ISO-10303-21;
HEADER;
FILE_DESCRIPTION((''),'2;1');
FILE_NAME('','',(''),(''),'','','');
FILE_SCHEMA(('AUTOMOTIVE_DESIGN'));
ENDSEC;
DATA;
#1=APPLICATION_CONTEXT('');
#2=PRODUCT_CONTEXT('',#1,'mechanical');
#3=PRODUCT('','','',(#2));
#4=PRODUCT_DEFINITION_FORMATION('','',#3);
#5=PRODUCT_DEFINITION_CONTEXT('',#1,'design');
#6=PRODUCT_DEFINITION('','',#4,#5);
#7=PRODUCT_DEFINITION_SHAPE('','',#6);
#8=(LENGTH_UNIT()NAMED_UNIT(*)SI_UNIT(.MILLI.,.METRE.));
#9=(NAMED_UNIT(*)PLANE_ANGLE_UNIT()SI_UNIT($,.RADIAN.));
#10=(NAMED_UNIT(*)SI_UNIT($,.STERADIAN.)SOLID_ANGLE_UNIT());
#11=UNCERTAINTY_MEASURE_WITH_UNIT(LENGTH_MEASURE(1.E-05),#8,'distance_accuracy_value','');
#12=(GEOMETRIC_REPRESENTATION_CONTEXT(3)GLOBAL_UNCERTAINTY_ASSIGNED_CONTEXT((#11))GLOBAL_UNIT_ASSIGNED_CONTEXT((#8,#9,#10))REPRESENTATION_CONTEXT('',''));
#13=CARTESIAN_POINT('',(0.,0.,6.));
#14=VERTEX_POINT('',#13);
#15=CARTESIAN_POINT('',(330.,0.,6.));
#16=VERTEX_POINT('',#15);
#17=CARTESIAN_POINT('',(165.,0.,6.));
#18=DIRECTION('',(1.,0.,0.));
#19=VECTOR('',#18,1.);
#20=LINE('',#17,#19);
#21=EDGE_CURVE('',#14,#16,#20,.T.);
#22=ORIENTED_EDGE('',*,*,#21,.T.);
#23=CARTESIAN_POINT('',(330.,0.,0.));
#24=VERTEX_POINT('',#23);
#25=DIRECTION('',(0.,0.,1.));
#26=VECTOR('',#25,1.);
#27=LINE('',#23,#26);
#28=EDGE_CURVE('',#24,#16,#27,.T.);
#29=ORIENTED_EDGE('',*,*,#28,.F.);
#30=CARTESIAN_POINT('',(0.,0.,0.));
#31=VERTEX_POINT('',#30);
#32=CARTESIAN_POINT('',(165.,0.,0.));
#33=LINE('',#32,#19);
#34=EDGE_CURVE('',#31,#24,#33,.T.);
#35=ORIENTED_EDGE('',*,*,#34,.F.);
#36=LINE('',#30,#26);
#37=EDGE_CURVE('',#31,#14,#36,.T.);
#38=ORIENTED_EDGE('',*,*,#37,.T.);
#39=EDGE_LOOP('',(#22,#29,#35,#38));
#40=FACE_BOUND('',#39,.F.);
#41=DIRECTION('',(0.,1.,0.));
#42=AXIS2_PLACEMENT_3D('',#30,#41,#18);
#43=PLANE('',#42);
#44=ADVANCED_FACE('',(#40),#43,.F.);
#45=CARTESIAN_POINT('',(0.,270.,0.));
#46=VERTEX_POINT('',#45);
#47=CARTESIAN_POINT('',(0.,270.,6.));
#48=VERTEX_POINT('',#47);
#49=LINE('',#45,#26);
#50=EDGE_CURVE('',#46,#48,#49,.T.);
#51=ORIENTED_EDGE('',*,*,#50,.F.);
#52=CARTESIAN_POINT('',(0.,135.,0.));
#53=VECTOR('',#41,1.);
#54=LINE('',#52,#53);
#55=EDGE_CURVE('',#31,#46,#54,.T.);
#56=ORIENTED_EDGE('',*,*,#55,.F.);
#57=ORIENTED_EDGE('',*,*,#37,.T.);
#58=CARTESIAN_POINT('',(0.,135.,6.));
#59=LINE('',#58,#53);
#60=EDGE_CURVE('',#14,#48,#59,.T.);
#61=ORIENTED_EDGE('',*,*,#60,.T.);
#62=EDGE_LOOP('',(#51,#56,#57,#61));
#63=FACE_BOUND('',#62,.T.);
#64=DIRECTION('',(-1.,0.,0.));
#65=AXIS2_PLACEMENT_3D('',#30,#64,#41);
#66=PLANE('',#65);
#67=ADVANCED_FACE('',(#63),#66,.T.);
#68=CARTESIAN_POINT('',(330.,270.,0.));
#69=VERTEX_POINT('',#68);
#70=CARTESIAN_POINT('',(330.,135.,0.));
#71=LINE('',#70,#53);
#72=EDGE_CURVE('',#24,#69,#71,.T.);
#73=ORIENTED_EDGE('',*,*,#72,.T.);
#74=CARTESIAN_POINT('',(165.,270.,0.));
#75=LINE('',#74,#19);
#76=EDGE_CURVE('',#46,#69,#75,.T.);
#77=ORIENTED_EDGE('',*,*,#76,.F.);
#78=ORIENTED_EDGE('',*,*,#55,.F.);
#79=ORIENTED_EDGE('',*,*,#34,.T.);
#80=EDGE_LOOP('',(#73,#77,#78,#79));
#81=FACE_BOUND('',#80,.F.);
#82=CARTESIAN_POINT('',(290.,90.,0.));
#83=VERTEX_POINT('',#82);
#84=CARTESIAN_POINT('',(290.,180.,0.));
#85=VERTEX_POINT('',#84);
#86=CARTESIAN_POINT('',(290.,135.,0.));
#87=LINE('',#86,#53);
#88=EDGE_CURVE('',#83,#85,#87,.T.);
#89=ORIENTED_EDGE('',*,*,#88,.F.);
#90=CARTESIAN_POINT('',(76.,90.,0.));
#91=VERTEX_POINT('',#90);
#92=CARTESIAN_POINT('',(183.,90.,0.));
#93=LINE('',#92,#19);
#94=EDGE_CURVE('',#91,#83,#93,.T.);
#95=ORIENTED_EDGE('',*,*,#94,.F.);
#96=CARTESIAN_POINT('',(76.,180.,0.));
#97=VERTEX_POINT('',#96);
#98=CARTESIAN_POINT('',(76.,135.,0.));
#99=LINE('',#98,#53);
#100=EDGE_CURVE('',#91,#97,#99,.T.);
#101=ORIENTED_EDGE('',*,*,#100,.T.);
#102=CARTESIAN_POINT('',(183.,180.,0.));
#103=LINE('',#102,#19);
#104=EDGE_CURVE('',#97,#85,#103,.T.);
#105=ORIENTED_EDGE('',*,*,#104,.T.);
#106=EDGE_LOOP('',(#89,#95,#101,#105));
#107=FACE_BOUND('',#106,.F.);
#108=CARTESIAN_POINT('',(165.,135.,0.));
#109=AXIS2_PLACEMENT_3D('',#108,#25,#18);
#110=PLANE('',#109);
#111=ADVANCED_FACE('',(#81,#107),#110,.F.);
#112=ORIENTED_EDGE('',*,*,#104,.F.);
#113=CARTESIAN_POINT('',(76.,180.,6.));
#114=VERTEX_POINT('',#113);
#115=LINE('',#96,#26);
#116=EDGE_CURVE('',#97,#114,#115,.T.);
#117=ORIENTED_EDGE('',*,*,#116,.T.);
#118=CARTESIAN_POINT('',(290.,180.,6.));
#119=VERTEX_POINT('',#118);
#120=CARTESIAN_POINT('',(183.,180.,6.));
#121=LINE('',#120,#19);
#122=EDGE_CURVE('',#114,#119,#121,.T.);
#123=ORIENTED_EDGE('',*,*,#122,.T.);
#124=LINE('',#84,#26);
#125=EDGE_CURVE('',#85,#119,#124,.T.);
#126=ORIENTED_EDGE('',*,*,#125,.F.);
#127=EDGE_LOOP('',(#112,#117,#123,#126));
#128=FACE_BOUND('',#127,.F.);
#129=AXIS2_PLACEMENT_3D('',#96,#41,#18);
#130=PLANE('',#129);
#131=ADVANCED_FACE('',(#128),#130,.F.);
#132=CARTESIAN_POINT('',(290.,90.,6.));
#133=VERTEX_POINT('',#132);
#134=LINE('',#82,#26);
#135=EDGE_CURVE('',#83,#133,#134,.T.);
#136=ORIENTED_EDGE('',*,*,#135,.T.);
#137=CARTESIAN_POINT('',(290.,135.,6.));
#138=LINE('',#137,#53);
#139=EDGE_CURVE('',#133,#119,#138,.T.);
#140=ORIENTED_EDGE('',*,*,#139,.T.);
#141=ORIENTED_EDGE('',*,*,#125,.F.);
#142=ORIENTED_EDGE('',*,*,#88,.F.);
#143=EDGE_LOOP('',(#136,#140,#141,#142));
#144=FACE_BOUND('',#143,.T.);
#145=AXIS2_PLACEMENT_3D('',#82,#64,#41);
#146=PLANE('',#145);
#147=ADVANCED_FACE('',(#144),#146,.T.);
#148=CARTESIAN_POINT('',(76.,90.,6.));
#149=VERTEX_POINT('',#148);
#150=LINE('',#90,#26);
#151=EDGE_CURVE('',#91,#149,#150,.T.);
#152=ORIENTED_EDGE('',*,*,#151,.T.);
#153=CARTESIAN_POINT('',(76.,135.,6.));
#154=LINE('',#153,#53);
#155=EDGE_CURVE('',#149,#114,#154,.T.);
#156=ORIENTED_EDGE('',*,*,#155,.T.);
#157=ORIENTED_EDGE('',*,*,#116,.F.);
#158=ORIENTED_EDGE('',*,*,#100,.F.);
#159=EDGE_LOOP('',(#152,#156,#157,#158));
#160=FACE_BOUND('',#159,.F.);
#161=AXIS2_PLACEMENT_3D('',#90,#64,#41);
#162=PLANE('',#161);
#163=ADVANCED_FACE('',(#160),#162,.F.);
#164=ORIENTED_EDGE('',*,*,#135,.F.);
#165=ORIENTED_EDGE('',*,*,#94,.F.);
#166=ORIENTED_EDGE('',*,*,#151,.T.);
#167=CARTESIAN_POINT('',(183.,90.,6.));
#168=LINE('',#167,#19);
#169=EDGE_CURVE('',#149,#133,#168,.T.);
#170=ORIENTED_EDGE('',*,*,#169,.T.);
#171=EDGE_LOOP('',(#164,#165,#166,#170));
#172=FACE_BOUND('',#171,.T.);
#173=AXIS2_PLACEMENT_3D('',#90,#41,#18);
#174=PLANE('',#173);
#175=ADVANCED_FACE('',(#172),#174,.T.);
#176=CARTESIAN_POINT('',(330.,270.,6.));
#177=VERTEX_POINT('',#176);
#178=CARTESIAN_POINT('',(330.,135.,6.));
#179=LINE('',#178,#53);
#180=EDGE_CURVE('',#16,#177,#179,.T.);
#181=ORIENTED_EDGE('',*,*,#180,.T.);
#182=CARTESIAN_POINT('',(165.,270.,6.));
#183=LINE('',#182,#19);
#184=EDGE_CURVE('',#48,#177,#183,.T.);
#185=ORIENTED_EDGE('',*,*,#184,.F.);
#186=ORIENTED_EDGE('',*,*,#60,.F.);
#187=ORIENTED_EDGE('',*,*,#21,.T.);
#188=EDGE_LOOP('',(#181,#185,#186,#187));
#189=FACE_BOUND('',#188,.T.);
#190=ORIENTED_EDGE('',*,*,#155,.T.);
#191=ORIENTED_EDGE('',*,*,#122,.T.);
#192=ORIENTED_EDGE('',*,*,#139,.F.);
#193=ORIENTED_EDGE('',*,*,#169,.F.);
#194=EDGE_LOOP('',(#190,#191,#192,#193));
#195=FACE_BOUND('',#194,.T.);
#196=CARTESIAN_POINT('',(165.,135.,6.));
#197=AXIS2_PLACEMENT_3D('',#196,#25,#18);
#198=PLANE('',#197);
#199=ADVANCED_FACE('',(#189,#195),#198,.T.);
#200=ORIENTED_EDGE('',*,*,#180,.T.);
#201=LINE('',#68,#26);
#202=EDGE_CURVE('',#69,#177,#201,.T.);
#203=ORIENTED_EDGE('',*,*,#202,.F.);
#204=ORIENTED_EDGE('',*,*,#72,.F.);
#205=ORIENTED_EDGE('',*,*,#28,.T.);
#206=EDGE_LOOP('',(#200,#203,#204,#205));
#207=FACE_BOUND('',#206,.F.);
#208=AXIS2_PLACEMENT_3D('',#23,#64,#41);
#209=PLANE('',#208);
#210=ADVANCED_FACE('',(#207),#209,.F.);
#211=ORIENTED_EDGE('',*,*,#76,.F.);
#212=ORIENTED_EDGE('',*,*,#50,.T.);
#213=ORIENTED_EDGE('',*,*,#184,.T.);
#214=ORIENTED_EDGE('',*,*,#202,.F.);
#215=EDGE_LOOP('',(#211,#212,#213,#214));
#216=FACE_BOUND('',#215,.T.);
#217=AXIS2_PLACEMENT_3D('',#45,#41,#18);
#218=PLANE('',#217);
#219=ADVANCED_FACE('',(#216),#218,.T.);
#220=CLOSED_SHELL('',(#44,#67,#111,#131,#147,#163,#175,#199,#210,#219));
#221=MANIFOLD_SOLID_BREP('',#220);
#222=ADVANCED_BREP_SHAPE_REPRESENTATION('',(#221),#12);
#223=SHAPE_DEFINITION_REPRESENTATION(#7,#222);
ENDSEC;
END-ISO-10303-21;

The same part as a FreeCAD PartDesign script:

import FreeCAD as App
import Part
import Sketcher


def add_polygon(sketch, points):
    """Adds a closed chain of lines whose ends are joined by coincident constraints."""
    first, n = sketch.GeometryCount, len(points)
    for a, b in zip(points, points[1:] + points[:1]):
        sketch.addGeometry(Part.LineSegment(App.Vector(*a, 0), App.Vector(*b, 0)), False)
    for i in range(n):
        sketch.addConstraint(Sketcher.Constraint("Coincident", first + i, 2, first + (i + 1) % n, 1))

doc = App.newDocument("Part")
body = doc.addObject("PartDesign::Body", "Body")

# Sketch on XY plane
sketch1 = doc.addObject("Sketcher::SketchObject", "Sketch")
body.addObject(sketch1)
sketch1.AttachmentSupport = (doc.XY_Plane, [""])
sketch1.MapMode = "FlatFace"
add_polygon(sketch1, [(0, 270), (0, 0), (330, 0), (330, 270)])  # lines 0-3
add_polygon(sketch1, [(290, 90), (76, 90), (76, 180), (290, 180)])  # lines 4-7
sketch1.addConstraint([
    Sketcher.Constraint("Vertical", 0),
    Sketcher.Constraint("Horizontal", 1),
    Sketcher.Constraint("Vertical", 2),
    Sketcher.Constraint("Horizontal", 3),
    Sketcher.Constraint("Horizontal", 4),
    Sketcher.Constraint("Vertical", 5),
    Sketcher.Constraint("Horizontal", 6),
    Sketcher.Constraint("Vertical", 7),
    Sketcher.Constraint("Coincident", 0, 2, -1, 1),
    Sketcher.Constraint("DistanceX", 1, 1, 1, 2, 330.0),
    Sketcher.Constraint("DistanceX", 4, 2, 4, 1, 214.0),
    Sketcher.Constraint("DistanceY", 0, 2, 0, 1, 270.0),
    Sketcher.Constraint("DistanceY", 5, 1, 5, 2, 90.0),
    Sketcher.Constraint("DistanceX", -1, 1, 4, 2, 76.0),
    Sketcher.Constraint("DistanceY", -1, 1, 4, 2, 90.0),
])
pad1 = doc.addObject("PartDesign::Pad", "Pad")
body.addObject(pad1)
pad1.Profile = sketch1
pad1.Length = 6

doc.recompute()
